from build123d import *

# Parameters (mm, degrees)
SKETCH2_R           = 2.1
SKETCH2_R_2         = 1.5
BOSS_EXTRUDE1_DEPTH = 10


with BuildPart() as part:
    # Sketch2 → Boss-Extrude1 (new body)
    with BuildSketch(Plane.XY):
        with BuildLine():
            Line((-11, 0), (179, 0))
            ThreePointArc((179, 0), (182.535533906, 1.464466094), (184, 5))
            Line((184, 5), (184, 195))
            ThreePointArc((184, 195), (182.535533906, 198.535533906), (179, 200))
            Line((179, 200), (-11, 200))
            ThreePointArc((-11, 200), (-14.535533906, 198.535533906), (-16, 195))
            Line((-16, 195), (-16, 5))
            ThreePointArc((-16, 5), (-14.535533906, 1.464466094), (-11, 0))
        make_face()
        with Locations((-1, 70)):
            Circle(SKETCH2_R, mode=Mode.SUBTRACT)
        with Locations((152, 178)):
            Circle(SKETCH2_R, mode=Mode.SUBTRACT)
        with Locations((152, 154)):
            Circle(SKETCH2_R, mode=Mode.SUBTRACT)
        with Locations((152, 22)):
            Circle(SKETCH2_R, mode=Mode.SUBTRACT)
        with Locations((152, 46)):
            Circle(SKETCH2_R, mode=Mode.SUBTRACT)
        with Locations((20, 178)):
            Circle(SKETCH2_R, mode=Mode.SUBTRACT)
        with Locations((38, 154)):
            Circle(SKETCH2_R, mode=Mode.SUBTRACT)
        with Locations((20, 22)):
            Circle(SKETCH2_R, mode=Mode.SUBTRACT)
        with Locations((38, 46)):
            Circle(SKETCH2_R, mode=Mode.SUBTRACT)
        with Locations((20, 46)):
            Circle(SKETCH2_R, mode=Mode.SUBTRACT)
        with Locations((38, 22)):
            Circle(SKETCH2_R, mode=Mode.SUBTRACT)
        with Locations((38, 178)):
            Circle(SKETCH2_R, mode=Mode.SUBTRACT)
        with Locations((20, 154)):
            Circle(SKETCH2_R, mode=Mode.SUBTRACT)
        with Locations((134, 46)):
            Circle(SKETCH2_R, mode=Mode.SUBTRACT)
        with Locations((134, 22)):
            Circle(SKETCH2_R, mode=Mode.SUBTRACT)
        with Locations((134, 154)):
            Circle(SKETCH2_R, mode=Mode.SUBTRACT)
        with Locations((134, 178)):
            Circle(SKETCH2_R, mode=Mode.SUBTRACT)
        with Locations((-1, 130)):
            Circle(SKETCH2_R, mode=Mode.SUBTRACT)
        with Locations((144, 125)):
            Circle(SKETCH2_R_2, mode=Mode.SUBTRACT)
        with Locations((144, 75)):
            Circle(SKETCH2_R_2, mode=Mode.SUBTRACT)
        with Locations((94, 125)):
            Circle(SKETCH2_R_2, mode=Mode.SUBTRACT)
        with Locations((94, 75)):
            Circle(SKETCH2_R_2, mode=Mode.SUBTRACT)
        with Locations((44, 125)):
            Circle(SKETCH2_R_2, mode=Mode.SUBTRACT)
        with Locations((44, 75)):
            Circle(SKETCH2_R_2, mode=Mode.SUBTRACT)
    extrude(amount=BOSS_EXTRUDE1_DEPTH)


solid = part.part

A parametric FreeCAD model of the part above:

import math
import FreeCAD as App
import Part
import Sketcher

doc = App.newDocument("Part")
params = doc.addObject("Spreadsheet::Sheet", "Params")
for row, (alias, value) in enumerate([
    ("sketch1_diameter", "3 mm"),
    ("sketch1_radius", "5 mm"),
    ("sketch1_diameter2", "4.2 mm"),
    ("sketch1_width", "190 mm"),
    ("pad1_length", "10 mm"),
], start=1):
    params.set(f"A{row}", alias)
    params.set(f"B{row}", "=" + value)
    params.setAlias(f"B{row}", alias)

body = doc.addObject("PartDesign::Body", "Body")

sketch1 = body.newObject("Sketcher::SketchObject", "Sketch")
sketch1.AttachmentSupport = (doc.getObject("XY_Plane"), [""])
sketch1.MapMode = "FlatFace"
sketch1.addGeometry(Part.LineSegment(App.Vector(-11, 0, 0), App.Vector(179, 0, 0)), False)
sketch1.addGeometry(Part.ArcOfCircle(Part.Circle(App.Vector(179, 5, 0), App.Vector(0, 0, 1), 5), math.radians(-90), math.radians(0)), False)
sketch1.addGeometry(Part.LineSegment(App.Vector(184, 5, 0), App.Vector(184, 195, 0)), False)
sketch1.addGeometry(Part.ArcOfCircle(Part.Circle(App.Vector(179, 195, 0), App.Vector(0, 0, 1), 5), math.radians(0), math.radians(90)), False)
sketch1.addGeometry(Part.LineSegment(App.Vector(179, 200, 0), App.Vector(-11, 200, 0)), False)
sketch1.addGeometry(Part.ArcOfCircle(Part.Circle(App.Vector(-11, 195, 0), App.Vector(0, 0, 1), 5), math.radians(90), math.radians(180)), False)
sketch1.addGeometry(Part.LineSegment(App.Vector(-16, 195, 0), App.Vector(-16, 5, 0)), False)
sketch1.addGeometry(Part.ArcOfCircle(Part.Circle(App.Vector(-11, 5, 0), App.Vector(0, 0, 1), 5), math.radians(180), math.radians(270)), False)
sketch1.addGeometry(Part.Circle(App.Vector(20, 22, 0), App.Vector(0, 0, 1), 2.1), False)
sketch1.addGeometry(Part.Circle(App.Vector(20, 46, 0), App.Vector(0, 0, 1), 2.1), False)
sketch1.addGeometry(Part.Circle(App.Vector(38, 22, 0), App.Vector(0, 0, 1), 2.1), False)
sketch1.addGeometry(Part.Circle(App.Vector(38, 46, 0), App.Vector(0, 0, 1), 2.1), False)
sketch1.addGeometry(Part.Circle(App.Vector(-1, 70, 0), App.Vector(0, 0, 1), 2.1), False)
sketch1.addGeometry(Part.Circle(App.Vector(44, 75, 0), App.Vector(0, 0, 1), 1.5), False)
sketch1.addGeometry(Part.Circle(App.Vector(134, 22, 0), App.Vector(0, 0, 1), 2.1), False)
sketch1.addGeometry(Part.Circle(App.Vector(152, 22, 0), App.Vector(0, 0, 1), 2.1), False)
sketch1.addGeometry(Part.Circle(App.Vector(134, 46, 0), App.Vector(0, 0, 1), 2.1), False)
sketch1.addGeometry(Part.Circle(App.Vector(152, 46, 0), App.Vector(0, 0, 1), 2.1), False)
sketch1.addGeometry(Part.Circle(App.Vector(94, 75, 0), App.Vector(0, 0, 1), 1.5), False)
sketch1.addGeometry(Part.Circle(App.Vector(144, 75, 0), App.Vector(0, 0, 1), 1.5), False)
sketch1.addGeometry(Part.Circle(App.Vector(-1, 130, 0), App.Vector(0, 0, 1), 2.1), False)
sketch1.addGeometry(Part.Circle(App.Vector(44, 125, 0), App.Vector(0, 0, 1), 1.5), False)
sketch1.addGeometry(Part.Circle(App.Vector(20, 154, 0), App.Vector(0, 0, 1), 2.1), False)
sketch1.addGeometry(Part.Circle(App.Vector(20, 178, 0), App.Vector(0, 0, 1), 2.1), False)
sketch1.addGeometry(Part.Circle(App.Vector(38, 154, 0), App.Vector(0, 0, 1), 2.1), False)
sketch1.addGeometry(Part.Circle(App.Vector(38, 178, 0), App.Vector(0, 0, 1), 2.1), False)
sketch1.addGeometry(Part.Circle(App.Vector(94, 125, 0), App.Vector(0, 0, 1), 1.5), False)
sketch1.addGeometry(Part.Circle(App.Vector(144, 125, 0), App.Vector(0, 0, 1), 1.5), False)
sketch1.addGeometry(Part.Circle(App.Vector(134, 154, 0), App.Vector(0, 0, 1), 2.1), False)
sketch1.addGeometry(Part.Circle(App.Vector(152, 154, 0), App.Vector(0, 0, 1), 2.1), False)
sketch1.addGeometry(Part.Circle(App.Vector(134, 178, 0), App.Vector(0, 0, 1), 2.1), False)
sketch1.addGeometry(Part.Circle(App.Vector(152, 178, 0), App.Vector(0, 0, 1), 2.1), False)
sketch1.addConstraint(Sketcher.Constraint("Tangent", 0, 2, 1, 1))
sketch1.addConstraint(Sketcher.Constraint("Tangent", 1, 2, 2, 1))
sketch1.addConstraint(Sketcher.Constraint("Tangent", 2, 2, 3, 1))
sketch1.addConstraint(Sketcher.Constraint("Tangent", 3, 2, 4, 1))
sketch1.addConstraint(Sketcher.Constraint("Tangent", 4, 2, 5, 1))
sketch1.addConstraint(Sketcher.Constraint("Tangent", 5, 2, 6, 1))
sketch1.addConstraint(Sketcher.Constraint("Tangent", 6, 2, 7, 1))
sketch1.addConstraint(Sketcher.Constraint("Tangent", 7, 2, 0, 1))
sketch1.addConstraint(Sketcher.Constraint("Horizontal", 0))
sketch1.addConstraint(Sketcher.Constraint("Vertical", 2))
sketch1.addConstraint(Sketcher.Constraint("Horizontal", 4))
sketch1.addConstraint(Sketcher.Constraint("Vertical", 6))
sketch1.addConstraint(Sketcher.Constraint("Equal", 1, 3))
sketch1.addConstraint(Sketcher.Constraint("Equal", 3, 5))
sketch1.addConstraint(Sketcher.Constraint("Equal", 5, 7))
sketch1.addConstraint(Sketcher.Constraint("Equal", 8, 9))
sketch1.addConstraint(Sketcher.Constraint("Equal", 9, 10))
sketch1.addConstraint(Sketcher.Constraint("Equal", 10, 11))
sketch1.addConstraint(Sketcher.Constraint("Equal", 11, 12))
sketch1.addConstraint(Sketcher.Constraint("Equal", 12, 14))
sketch1.addConstraint(Sketcher.Constraint("Equal", 14, 15))
sketch1.addConstraint(Sketcher.Constraint("Equal", 15, 16))
sketch1.addConstraint(Sketcher.Constraint("Equal", 16, 17))
sketch1.addConstraint(Sketcher.Constraint("Equal", 13, 18))
sketch1.addConstraint(Sketcher.Constraint("Equal", 18, 19))
sketch1.addConstraint(Sketcher.Constraint("Equal", 17, 20))
sketch1.addConstraint(Sketcher.Constraint("Equal", 19, 21))
sketch1.addConstraint(Sketcher.Constraint("Equal", 20, 22))
sketch1.addConstraint(Sketcher.Constraint("Equal", 22, 23))
sketch1.addConstraint(Sketcher.Constraint("Equal", 23, 24))
sketch1.addConstraint(Sketcher.Constraint("Equal", 24, 25))
sketch1.addConstraint(Sketcher.Constraint("Equal", 21, 26))
sketch1.addConstraint(Sketcher.Constraint("Equal", 26, 27))
sketch1.addConstraint(Sketcher.Constraint("Equal", 25, 28))
sketch1.addConstraint(Sketcher.Constraint("Equal", 28, 29))
sketch1.addConstraint(Sketcher.Constraint("Equal", 29, 30))
sketch1.addConstraint(Sketcher.Constraint("Equal", 30, 31))
sketch1.addConstraint(Sketcher.Constraint("PointOnObject", 0, 2, -1))
sketch1.addConstraint(Sketcher.Constraint("Horizontal", 8, 3, 10, 3))
sketch1.addConstraint(Sketcher.Constraint("Horizontal", 9, 3, 11, 3))
sketch1.addConstraint(Sketcher.Constraint("Horizontal", 10, 3, 14, 3))
sketch1.addConstraint(Sketcher.Constraint("Horizontal", 14, 3, 15, 3))
sketch1.addConstraint(Sketcher.Constraint("Horizontal", 11, 3, 16, 3))
sketch1.addConstraint(Sketcher.Constraint("Horizontal", 16, 3, 17, 3))
sketch1.addConstraint(Sketcher.Constraint("Horizontal", 13, 3, 18, 3))
sketch1.addConstraint(Sketcher.Constraint("Horizontal", 18, 3, 19, 3))
sketch1.addConstraint(Sketcher.Constraint("Horizontal", 22, 3, 24, 3))
sketch1.addConstraint(Sketcher.Constraint("Horizontal", 23, 3, 25, 3))
sketch1.addConstraint(Sketcher.Constraint("Horizontal", 21, 3, 26, 3))
sketch1.addConstraint(Sketcher.Constraint("Horizontal", 26, 3, 27, 3))
sketch1.addConstraint(Sketcher.Constraint("Horizontal", 24, 3, 28, 3))
sketch1.addConstraint(Sketcher.Constraint("Horizontal", 28, 3, 29, 3))
sketch1.addConstraint(Sketcher.Constraint("Horizontal", 25, 3, 30, 3))
sketch1.addConstraint(Sketcher.Constraint("Horizontal", 30, 3, 31, 3))
sketch1.addConstraint(Sketcher.Constraint("Vertical", 8, 3, 9, 3))
sketch1.addConstraint(Sketcher.Constraint("Vertical", 10, 3, 11, 3))
sketch1.addConstraint(Sketcher.Constraint("Vertical", 14, 3, 16, 3))
sketch1.addConstraint(Sketcher.Constraint("Vertical", 15, 3, 17, 3))
sketch1.addConstraint(Sketcher.Constraint("Vertical", 12, 3, 20, 3))
sketch1.addConstraint(Sketcher.Constraint("Vertical", 13, 3, 21, 3))
sketch1.addConstraint(Sketcher.Constraint("Vertical", 9, 3, 22, 3))
sketch1.addConstraint(Sketcher.Constraint("Vertical", 22, 3, 23, 3))
sketch1.addConstraint(Sketcher.Constraint("Vertical", 11, 3, 24, 3))
sketch1.addConstraint(Sketcher.Constraint("Vertical", 24, 3, 25, 3))
sketch1.addConstraint(Sketcher.Constraint("Vertical", 18, 3, 26, 3))
sketch1.addConstraint(Sketcher.Constraint("Vertical", 19, 3, 27, 3))
sketch1.addConstraint(Sketcher.Constraint("Vertical", 16, 3, 28, 3))
sketch1.addConstraint(Sketcher.Constraint("Vertical", 17, 3, 29, 3))
sketch1.addConstraint(Sketcher.Constraint("Vertical", 28, 3, 30, 3))
sketch1.addConstraint(Sketcher.Constraint("Vertical", 29, 3, 31, 3))
sketch1.addConstraint(Sketcher.Constraint("Equal", 4, 2))
sketch1.addConstraint(Sketcher.Constraint("Diameter", 13, 3.0))
sketch1.addConstraint(Sketcher.Constraint("Radius", 1, 5.0))
sketch1.addConstraint(Sketcher.Constraint("Diameter", 8, 4.2))
sketch1.addConstraint(Sketcher.Constraint("DistanceX", 0, 1, 0, 2, 190.0))
sketch1.addConstraint(Sketcher.Constraint("DistanceX", -1, 1, 1, 3, 179.0))
sketch1.addConstraint(Sketcher.Constraint("DistanceX", -1, 1, 8, 3, 20.0))
sketch1.addConstraint(Sketcher.Constraint("DistanceY", -1, 1, 8, 3, 22.0))
sketch1.addConstraint(Sketcher.Constraint("DistanceY", -1, 1, 9, 3, 46.0))
sketch1.addConstraint(Sketcher.Constraint("DistanceX", -1, 1, 10, 3, 38.0))
sketch1.addConstraint(Sketcher.Constraint("DistanceX", 12, 3, -1, 1, 1.0))
sketch1.addConstraint(Sketcher.Constraint("DistanceY", -1, 1, 12, 3, 70.0))
sketch1.addConstraint(Sketcher.Constraint("DistanceX", -1, 1, 13, 3, 44.0))
sketch1.addConstraint(Sketcher.Constraint("DistanceY", -1, 1, 13, 3, 75.0))
sketch1.addConstraint(Sketcher.Constraint("DistanceX", -1, 1, 14, 3, 134.0))
sketch1.addConstraint(Sketcher.Constraint("DistanceX", -1, 1, 15, 3, 152.0))
sketch1.addConstraint(Sketcher.Constraint("DistanceX", -1, 1, 18, 3, 94.0))
sketch1.addConstraint(Sketcher.Constraint("DistanceX", -1, 1, 19, 3, 144.0))
sketch1.addConstraint(Sketcher.Constraint("DistanceY", -1, 1, 20, 3, 130.0))
sketch1.addConstraint(Sketcher.Constraint("DistanceY", -1, 1, 21, 3, 125.0))
sketch1.addConstraint(Sketcher.Constraint("DistanceY", -1, 1, 22, 3, 154.0))
sketch1.addConstraint(Sketcher.Constraint("DistanceY", -1, 1, 23, 3, 178.0))
sketch1.setExpression("Constraints[71]", "Params.sketch1_diameter")
sketch1.setExpression("Constraints[72]", "Params.sketch1_radius")
sketch1.setExpression("Constraints[73]", "Params.sketch1_diameter2")
sketch1.setExpression("Constraints[74]", "Params.sketch1_width")
pad1 = body.newObject("PartDesign::Pad", "Pad")
pad1.Profile = sketch1
pad1.setExpression("Length", "Params.pad1_length")

doc.recompute()
